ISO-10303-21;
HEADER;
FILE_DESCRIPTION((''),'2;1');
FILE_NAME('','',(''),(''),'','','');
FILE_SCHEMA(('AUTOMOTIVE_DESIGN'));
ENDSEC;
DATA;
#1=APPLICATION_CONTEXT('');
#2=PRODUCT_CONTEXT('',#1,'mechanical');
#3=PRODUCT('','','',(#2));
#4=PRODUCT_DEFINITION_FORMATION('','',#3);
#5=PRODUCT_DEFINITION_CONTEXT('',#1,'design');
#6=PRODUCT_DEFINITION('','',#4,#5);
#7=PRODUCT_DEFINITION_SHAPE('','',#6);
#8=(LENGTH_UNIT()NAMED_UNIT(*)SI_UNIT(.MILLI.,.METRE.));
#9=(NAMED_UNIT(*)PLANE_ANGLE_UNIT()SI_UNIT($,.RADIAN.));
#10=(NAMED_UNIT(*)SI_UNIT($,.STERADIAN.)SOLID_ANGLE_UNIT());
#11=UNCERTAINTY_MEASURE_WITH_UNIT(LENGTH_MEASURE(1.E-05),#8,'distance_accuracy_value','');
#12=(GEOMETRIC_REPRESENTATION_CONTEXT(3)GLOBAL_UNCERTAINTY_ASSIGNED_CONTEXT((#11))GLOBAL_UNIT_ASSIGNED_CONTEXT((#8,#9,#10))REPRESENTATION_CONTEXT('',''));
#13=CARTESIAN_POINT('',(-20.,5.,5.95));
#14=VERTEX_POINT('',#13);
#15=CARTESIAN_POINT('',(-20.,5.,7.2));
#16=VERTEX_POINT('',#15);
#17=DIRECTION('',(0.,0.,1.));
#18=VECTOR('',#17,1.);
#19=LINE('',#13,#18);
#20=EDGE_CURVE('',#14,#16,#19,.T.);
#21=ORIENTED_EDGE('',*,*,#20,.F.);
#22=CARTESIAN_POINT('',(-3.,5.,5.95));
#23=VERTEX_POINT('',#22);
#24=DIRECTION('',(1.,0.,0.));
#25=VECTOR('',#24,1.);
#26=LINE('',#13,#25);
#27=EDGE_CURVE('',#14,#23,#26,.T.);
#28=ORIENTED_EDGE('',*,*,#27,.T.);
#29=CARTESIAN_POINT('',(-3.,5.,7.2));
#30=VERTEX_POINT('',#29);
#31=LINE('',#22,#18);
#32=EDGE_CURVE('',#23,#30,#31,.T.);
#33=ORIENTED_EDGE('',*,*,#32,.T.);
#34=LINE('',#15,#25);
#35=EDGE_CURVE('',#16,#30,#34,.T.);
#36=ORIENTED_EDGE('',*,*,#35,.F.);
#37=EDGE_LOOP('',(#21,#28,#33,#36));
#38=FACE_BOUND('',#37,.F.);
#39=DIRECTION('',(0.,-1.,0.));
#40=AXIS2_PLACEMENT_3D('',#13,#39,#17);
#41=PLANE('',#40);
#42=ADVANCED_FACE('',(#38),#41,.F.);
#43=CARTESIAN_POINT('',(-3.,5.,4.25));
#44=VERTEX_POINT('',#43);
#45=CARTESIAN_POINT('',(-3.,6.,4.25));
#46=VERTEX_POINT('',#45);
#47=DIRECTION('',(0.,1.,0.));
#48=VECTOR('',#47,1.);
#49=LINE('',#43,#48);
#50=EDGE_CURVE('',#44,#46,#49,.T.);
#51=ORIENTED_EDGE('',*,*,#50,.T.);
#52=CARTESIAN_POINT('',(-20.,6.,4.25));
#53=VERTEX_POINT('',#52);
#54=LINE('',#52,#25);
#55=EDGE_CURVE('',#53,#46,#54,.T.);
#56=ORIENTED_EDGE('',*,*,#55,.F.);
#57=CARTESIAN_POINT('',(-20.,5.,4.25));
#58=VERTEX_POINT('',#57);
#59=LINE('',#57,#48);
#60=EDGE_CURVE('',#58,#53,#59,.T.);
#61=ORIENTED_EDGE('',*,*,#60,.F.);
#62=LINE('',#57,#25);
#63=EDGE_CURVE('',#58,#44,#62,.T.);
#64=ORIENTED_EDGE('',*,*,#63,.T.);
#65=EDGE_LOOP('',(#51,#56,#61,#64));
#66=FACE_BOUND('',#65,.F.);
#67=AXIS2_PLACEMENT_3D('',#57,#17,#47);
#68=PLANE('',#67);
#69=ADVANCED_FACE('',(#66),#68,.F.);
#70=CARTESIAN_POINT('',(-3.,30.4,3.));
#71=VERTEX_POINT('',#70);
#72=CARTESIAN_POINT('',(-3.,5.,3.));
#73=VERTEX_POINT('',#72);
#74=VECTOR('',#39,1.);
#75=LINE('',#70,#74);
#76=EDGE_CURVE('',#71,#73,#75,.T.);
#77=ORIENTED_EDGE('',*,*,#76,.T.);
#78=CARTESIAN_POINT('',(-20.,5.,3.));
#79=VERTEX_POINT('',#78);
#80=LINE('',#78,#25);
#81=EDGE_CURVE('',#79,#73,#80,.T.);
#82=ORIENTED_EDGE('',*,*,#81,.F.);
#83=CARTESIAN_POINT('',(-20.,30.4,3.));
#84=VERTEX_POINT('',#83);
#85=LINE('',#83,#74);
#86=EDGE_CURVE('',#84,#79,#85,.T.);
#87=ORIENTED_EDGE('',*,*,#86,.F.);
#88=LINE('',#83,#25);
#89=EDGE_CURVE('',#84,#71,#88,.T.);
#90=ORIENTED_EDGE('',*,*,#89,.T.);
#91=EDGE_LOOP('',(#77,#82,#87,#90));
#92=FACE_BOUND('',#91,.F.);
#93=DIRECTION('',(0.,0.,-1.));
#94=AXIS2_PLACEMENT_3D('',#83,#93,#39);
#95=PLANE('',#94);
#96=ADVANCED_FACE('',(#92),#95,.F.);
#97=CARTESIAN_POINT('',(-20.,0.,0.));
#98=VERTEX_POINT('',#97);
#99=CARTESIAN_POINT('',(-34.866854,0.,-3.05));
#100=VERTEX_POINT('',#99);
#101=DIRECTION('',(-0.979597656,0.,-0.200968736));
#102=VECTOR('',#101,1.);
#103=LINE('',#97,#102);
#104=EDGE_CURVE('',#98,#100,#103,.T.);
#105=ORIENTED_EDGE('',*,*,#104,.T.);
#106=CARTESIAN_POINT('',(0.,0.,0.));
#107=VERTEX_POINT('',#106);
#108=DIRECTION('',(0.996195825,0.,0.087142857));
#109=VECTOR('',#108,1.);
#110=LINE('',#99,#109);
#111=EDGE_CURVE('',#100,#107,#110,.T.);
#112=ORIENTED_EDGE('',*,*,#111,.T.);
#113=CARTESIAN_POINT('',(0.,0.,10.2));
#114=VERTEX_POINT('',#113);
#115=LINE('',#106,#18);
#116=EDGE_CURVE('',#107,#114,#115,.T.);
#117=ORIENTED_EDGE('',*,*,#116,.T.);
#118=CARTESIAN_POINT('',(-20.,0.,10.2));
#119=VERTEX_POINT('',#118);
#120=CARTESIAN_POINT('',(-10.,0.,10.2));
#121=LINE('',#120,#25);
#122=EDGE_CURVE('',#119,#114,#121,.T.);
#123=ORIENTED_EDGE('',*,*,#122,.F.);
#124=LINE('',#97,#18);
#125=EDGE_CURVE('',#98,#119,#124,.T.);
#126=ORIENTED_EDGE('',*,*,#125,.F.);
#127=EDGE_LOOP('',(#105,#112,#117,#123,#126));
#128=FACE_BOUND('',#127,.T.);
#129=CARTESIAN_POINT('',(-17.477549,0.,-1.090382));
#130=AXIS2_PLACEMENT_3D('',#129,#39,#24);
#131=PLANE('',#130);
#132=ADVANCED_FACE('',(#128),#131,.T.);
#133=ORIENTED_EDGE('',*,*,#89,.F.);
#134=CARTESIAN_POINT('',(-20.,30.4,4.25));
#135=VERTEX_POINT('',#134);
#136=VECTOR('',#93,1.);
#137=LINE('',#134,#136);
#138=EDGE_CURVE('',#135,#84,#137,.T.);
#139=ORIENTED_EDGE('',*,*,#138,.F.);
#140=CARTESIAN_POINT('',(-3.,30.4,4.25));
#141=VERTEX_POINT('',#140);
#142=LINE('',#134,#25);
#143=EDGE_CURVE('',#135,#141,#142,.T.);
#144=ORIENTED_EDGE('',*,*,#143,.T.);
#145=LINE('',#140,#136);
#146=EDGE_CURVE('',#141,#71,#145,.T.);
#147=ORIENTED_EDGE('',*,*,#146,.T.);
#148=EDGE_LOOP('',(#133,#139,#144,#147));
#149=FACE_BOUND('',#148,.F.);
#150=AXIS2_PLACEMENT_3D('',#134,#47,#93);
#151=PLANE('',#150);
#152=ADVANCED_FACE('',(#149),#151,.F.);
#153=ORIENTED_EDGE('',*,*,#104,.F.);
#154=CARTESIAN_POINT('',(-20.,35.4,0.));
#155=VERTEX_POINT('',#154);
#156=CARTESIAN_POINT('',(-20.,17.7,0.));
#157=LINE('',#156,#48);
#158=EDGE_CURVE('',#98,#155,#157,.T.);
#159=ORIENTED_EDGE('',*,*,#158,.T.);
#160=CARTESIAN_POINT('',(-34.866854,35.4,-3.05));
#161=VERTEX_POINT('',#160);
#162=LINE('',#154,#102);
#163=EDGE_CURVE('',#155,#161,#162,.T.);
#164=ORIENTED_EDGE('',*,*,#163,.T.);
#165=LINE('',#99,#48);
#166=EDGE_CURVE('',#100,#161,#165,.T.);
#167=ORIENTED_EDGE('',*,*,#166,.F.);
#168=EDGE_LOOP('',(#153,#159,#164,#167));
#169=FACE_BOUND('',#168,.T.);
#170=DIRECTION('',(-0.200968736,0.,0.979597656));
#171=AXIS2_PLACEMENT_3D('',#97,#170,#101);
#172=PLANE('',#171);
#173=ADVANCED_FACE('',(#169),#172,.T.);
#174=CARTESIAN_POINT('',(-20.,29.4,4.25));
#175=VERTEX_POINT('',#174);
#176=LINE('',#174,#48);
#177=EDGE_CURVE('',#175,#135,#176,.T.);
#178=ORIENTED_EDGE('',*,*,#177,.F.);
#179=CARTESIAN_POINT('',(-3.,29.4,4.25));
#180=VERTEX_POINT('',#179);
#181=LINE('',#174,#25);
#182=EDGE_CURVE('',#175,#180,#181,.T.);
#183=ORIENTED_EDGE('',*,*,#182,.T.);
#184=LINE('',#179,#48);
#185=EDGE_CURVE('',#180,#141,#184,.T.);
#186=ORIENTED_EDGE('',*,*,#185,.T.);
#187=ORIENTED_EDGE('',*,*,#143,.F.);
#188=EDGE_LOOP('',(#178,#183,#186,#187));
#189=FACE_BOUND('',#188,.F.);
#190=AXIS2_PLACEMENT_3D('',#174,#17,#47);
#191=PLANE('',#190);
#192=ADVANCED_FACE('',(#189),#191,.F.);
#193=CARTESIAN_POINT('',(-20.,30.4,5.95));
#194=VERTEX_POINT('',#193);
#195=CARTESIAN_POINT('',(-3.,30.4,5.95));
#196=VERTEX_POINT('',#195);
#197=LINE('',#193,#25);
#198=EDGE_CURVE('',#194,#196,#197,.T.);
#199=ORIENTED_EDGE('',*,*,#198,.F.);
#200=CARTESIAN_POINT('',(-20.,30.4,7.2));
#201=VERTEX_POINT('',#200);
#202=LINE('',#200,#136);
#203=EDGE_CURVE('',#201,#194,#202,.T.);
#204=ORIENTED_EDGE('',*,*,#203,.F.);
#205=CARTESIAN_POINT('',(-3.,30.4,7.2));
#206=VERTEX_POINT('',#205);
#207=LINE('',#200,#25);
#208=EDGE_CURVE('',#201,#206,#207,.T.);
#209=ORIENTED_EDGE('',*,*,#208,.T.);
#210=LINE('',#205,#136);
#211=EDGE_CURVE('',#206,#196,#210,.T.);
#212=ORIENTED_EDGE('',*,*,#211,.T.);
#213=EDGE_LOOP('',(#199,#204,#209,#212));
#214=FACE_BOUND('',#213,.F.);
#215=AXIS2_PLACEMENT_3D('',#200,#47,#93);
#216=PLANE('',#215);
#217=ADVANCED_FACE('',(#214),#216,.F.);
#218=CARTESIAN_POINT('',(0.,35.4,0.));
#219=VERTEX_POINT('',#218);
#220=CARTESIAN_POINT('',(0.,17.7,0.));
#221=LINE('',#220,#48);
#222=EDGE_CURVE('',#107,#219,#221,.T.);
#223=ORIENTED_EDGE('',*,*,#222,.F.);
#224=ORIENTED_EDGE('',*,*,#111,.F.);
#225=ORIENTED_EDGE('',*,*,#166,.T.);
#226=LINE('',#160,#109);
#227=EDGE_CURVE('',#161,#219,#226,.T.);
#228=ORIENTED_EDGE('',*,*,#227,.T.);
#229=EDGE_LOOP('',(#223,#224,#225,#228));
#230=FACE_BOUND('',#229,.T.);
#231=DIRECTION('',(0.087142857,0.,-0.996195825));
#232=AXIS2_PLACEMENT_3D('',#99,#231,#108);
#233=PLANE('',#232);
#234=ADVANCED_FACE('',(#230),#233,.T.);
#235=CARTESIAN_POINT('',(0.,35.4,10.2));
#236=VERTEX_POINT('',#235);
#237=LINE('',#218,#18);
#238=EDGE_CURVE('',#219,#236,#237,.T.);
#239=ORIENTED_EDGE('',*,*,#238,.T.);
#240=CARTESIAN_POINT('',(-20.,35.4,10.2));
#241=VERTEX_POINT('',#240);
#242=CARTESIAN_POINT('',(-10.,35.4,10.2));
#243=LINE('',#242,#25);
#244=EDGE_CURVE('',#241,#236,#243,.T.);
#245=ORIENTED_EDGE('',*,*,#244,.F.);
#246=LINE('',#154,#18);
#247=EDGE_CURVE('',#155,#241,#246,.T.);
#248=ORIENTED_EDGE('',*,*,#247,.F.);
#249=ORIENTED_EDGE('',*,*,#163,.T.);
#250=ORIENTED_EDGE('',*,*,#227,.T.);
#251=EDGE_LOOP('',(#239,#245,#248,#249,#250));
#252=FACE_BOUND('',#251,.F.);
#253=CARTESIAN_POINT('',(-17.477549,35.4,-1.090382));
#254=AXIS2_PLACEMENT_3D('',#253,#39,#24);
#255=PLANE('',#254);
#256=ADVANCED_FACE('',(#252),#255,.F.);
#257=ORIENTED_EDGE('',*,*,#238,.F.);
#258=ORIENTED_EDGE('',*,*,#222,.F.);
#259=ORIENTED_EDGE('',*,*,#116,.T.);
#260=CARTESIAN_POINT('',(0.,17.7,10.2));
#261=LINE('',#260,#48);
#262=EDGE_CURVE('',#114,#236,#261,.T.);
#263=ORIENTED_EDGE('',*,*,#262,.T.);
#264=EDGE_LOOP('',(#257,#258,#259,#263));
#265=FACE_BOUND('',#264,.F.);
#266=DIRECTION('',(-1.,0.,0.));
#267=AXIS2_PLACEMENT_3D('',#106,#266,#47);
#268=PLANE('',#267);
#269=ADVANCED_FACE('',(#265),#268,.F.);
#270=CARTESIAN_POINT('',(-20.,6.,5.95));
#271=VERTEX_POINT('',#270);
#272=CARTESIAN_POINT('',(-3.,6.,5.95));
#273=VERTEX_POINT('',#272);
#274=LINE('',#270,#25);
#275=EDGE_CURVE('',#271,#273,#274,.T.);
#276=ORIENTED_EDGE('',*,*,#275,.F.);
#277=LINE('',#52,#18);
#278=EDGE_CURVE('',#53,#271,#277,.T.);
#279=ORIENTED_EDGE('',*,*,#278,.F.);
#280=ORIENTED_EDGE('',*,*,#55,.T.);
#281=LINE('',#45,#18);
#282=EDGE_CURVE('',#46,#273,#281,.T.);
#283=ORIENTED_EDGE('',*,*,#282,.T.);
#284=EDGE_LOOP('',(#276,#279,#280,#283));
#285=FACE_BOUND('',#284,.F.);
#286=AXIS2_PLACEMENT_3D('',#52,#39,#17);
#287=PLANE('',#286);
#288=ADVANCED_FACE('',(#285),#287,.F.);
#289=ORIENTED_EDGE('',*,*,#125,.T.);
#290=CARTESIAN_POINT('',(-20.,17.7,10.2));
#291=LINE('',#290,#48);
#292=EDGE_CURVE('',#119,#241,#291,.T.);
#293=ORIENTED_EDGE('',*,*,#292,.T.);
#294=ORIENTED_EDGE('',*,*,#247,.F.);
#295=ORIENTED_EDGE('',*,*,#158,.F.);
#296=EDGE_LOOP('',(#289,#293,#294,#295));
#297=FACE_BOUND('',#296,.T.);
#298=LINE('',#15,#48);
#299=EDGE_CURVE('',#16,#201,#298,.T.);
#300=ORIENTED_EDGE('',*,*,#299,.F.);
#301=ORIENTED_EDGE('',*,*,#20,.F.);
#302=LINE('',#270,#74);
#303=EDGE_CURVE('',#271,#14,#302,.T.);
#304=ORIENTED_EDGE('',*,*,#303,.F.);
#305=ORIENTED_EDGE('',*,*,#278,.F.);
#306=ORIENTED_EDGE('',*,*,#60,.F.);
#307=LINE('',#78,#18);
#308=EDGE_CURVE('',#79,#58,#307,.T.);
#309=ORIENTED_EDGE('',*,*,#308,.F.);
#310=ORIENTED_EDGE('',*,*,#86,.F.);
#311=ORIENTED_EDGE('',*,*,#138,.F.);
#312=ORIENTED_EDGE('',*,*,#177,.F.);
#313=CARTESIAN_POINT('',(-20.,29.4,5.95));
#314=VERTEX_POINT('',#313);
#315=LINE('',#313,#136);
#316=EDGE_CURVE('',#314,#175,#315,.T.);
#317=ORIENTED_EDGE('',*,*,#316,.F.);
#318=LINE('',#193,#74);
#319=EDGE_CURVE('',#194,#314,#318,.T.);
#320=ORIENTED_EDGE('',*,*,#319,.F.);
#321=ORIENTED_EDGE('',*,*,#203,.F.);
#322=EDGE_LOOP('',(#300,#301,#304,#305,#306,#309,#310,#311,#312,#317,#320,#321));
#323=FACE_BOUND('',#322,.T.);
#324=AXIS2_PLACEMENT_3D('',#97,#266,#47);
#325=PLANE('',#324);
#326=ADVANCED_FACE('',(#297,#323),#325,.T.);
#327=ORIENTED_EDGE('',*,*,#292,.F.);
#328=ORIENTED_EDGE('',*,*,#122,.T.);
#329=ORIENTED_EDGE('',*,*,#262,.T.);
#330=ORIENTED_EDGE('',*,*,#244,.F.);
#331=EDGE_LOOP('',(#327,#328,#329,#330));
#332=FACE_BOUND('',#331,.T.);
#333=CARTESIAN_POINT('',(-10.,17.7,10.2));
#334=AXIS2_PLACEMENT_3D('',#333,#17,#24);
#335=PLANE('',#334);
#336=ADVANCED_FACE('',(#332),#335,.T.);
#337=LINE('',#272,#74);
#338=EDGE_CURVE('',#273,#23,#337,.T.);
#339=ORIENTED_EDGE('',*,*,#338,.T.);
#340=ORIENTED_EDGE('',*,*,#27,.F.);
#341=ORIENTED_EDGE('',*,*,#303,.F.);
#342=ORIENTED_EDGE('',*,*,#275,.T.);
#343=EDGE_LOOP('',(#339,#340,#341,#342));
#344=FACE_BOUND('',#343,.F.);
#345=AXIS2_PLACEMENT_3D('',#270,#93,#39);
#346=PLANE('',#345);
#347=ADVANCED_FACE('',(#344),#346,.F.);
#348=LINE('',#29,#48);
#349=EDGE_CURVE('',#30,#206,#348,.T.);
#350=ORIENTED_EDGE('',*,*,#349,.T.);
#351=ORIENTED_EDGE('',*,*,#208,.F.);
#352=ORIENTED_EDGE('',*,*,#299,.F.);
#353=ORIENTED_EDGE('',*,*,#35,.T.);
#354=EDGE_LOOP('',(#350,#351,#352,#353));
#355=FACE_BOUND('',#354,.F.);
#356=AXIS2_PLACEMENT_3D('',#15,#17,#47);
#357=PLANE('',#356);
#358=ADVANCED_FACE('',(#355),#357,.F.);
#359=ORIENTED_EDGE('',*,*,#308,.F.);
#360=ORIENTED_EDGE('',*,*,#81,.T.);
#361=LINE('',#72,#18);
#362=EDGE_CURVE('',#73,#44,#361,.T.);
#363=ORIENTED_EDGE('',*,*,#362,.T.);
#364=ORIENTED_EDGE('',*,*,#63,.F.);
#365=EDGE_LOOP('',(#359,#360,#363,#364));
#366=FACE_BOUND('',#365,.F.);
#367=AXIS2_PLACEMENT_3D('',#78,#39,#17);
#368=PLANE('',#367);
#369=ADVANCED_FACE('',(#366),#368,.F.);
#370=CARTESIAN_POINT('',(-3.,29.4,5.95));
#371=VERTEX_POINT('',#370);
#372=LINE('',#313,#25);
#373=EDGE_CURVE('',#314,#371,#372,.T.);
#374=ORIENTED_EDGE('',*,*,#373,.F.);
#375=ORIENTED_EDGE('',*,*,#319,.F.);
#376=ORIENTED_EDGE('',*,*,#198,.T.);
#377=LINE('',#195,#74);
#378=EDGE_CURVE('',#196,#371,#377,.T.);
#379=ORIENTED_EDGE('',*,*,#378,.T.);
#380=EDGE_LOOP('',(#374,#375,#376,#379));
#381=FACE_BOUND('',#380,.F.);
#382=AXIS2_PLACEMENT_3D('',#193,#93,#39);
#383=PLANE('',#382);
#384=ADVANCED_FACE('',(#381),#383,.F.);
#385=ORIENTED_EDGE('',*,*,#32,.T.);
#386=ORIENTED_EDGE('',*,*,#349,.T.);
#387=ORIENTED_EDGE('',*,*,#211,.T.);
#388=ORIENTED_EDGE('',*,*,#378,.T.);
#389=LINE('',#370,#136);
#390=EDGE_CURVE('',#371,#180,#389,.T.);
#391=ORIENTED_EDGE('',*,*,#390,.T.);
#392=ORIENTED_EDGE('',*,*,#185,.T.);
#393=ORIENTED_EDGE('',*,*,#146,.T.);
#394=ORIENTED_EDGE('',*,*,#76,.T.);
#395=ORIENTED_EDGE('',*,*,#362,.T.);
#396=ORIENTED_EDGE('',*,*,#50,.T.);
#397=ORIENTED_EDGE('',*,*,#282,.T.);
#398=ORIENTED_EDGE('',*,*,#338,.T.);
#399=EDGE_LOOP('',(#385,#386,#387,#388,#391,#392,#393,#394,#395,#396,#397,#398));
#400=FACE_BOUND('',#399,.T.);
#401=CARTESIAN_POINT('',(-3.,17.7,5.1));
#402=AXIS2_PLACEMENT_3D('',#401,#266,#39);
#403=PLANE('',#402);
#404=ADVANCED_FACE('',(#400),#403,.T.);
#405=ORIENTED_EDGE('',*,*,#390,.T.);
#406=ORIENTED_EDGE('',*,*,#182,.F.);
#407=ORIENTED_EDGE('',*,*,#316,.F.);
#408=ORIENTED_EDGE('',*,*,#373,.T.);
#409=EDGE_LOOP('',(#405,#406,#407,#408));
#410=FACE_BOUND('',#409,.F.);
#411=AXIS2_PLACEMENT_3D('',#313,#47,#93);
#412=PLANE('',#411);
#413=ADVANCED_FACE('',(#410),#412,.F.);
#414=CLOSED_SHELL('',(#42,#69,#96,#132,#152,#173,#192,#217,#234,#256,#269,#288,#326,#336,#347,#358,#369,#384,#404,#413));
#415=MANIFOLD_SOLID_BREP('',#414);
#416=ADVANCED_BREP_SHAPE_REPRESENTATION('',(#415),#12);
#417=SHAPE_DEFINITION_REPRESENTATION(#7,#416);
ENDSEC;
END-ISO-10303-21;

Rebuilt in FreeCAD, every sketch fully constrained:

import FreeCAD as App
import Part
import Sketcher

V = App.Vector

doc = App.newDocument("Part")
body = doc.addObject("PartDesign::Body", "Body")

# Sketch on XY plane
sketch1 = body.newObject("Sketcher::SketchObject", "Sketch")
sketch1.AttachmentSupport = (doc.getObject("XY_Plane"), [""])
sketch1.MapMode = "FlatFace"
sketch1.addGeometry([
    Part.LineSegment(V(-20, 35, 0), V(-20, 0, 0)),
    Part.LineSegment(V(-20, 0, 0), V(0, 0, 0)),
    Part.LineSegment(V(0, 0, 0), V(0, 35, 0)),
    Part.LineSegment(V(0, 35, 0), V(-20, 35, 0)),
], False)
sketch1.addConstraint([
    Sketcher.Constraint("Coincident", 0, 2, 1, 1),
    Sketcher.Constraint("Coincident", 1, 2, 2, 1),
    Sketcher.Constraint("Coincident", 2, 2, 3, 1),
    Sketcher.Constraint("Coincident", 3, 2, 0, 1),
    Sketcher.Constraint("Vertical", 0),
    Sketcher.Constraint("Horizontal", 1),
    Sketcher.Constraint("Vertical", 2),
    Sketcher.Constraint("Horizontal", 3),
    Sketcher.Constraint("Coincident", 1, 2, -1, 1),
    Sketcher.Constraint("DistanceX", 1, 1, 1, 2, 20.0),
    Sketcher.Constraint("DistanceY", 0, 2, 0, 1, 35.4),
])
pad1 = body.newObject("PartDesign::Pad", "Pad")
pad1.Profile = sketch1
pad1.Length = 10.2

# Sketch on YZ plane
sketch2 = body.newObject("Sketcher::SketchObject", "Sketch001")
sketch2.AttachmentSupport = (doc.getObject("YZ_Plane"), [""])
sketch2.MapMode = "FlatFace"
sketch2.AttachmentOffset = App.Placement(V(0, 0, -20), App.Rotation())
sketch2.addGeometry([
    Part.LineSegment(V(5, 6, 0), V(5, 7.2, 0)),  # 0
    Part.LineSegment(V(5, 7.2, 0), V(30.4, 7.2, 0)),  # 1
    Part.LineSegment(V(30.4, 7.2, 0), V(30.4, 6, 0)),  # 2
    Part.LineSegment(V(30.4, 6, 0), V(29.4, 6, 0)),  # 3
    Part.LineSegment(V(29.4, 6, 0), V(29.4, 4.2, 0)),  # 4
    Part.LineSegment(V(29.4, 4.2, 0), V(30.4, 4.2, 0)),  # 5
    Part.LineSegment(V(30.4, 4.2, 0), V(30.4, 3, 0)),  # 6
    Part.LineSegment(V(30.4, 3, 0), V(5, 3, 0)),  # 7
    Part.LineSegment(V(5, 3, 0), V(5, 4.2, 0)),  # 8
    Part.LineSegment(V(5, 4.2, 0), V(6, 4.2, 0)),  # 9
    Part.LineSegment(V(6, 4.2, 0), V(6, 6, 0)),  # 10
    Part.LineSegment(V(6, 6, 0), V(5, 6, 0)),  # 11
], False)
sketch2.addConstraint([
    Sketcher.Constraint("Coincident", 0, 2, 1, 1),
    Sketcher.Constraint("Coincident", 1, 2, 2, 1),
    Sketcher.Constraint("Coincident", 2, 2, 3, 1),
    Sketcher.Constraint("Coincident", 3, 2, 4, 1),
    Sketcher.Constraint("Coincident", 4, 2, 5, 1),
    Sketcher.Constraint("Coincident", 5, 2, 6, 1),
    Sketcher.Constraint("Coincident", 6, 2, 7, 1),
    Sketcher.Constraint("Coincident", 7, 2, 8, 1),
    Sketcher.Constraint("Coincident", 8, 2, 9, 1),
    Sketcher.Constraint("Coincident", 9, 2, 10, 1),
    Sketcher.Constraint("Coincident", 10, 2, 11, 1),
    Sketcher.Constraint("Coincident", 11, 2, 0, 1),
    Sketcher.Constraint("Vertical", 0),
    Sketcher.Constraint("Horizontal", 1),
    Sketcher.Constraint("Vertical", 2),
    Sketcher.Constraint("Horizontal", 3),
    Sketcher.Constraint("Vertical", 4),
    Sketcher.Constraint("Horizontal", 5),
    Sketcher.Constraint("Vertical", 6),
    Sketcher.Constraint("Horizontal", 7),
    Sketcher.Constraint("Vertical", 8),
    Sketcher.Constraint("Horizontal", 9),
    Sketcher.Constraint("Vertical", 10),
    Sketcher.Constraint("Horizontal", 11),
    Sketcher.Constraint("Horizontal", 5, 2, 8, 2),
    Sketcher.Constraint("Horizontal", 3, 2, 10, 2),
    Sketcher.Constraint("Vertical", 2, 2, 5, 2),
    Sketcher.Constraint("Vertical", 0, 2, 7, 2),
    Sketcher.Constraint("Equal", 5, 9),
    Sketcher.Constraint("Equal", 2, 6),
    Sketcher.Constraint("DistanceX", 3, 2, 3, 1, 1.0),
    Sketcher.Constraint("DistanceX", 1, 1, 1, 2, 25.4),
    Sketcher.Constraint("DistanceY", 4, 2, 4, 1, 1.7),
    Sketcher.Constraint("DistanceX", -1, 1, 0, 2, 5.0),
    Sketcher.Constraint("DistanceY", -1, 1, 6, 2, 3.0),
    Sketcher.Constraint("DistanceY", 0, 1, 0, 2, 1.25),
])
pocket1 = body.newObject("PartDesign::Pocket", "Pocket")
pocket1.Profile = sketch2
pocket1.Length = 17
pocket1.Reversed = True

# Sketch on XZ plane
sketch3 = body.newObject("Sketcher::SketchObject", "Sketch002")
sketch3.AttachmentSupport = (doc.getObject("XZ_Plane"), [""])
sketch3.MapMode = "FlatFace"
sketch3.addGeometry([
    Part.LineSegment(V(-35, -3, 0), V(0, 0, 0)),
    Part.LineSegment(V(0, 0, 0), V(-20, 0, 0)),
    Part.LineSegment(V(-20, 0, 0), V(-35, -3, 0)),
], False)
sketch3.addConstraint([
    Sketcher.Constraint("Coincident", 0, 2, 1, 1),
    Sketcher.Constraint("Coincident", 1, 2, 2, 1),
    Sketcher.Constraint("Coincident", 2, 2, 0, 1),
    Sketcher.Constraint("Horizontal", 1),
    Sketcher.Constraint("Coincident", 0, 2, -1, 1),
    Sketcher.Constraint("DistanceX", 1, 2, 1, 1, 20.0),
    Sketcher.Constraint("Distance", 0, 35.0),
    Sketcher.Constraint("DistanceY", 2, 2, -1, 1, 3.05),
])
pad2 = body.newObject("PartDesign::Pad", "Pad001")
pad2.Profile = sketch3
pad2.Length = 35.4
pad2.Reversed = True

doc.recompute()
